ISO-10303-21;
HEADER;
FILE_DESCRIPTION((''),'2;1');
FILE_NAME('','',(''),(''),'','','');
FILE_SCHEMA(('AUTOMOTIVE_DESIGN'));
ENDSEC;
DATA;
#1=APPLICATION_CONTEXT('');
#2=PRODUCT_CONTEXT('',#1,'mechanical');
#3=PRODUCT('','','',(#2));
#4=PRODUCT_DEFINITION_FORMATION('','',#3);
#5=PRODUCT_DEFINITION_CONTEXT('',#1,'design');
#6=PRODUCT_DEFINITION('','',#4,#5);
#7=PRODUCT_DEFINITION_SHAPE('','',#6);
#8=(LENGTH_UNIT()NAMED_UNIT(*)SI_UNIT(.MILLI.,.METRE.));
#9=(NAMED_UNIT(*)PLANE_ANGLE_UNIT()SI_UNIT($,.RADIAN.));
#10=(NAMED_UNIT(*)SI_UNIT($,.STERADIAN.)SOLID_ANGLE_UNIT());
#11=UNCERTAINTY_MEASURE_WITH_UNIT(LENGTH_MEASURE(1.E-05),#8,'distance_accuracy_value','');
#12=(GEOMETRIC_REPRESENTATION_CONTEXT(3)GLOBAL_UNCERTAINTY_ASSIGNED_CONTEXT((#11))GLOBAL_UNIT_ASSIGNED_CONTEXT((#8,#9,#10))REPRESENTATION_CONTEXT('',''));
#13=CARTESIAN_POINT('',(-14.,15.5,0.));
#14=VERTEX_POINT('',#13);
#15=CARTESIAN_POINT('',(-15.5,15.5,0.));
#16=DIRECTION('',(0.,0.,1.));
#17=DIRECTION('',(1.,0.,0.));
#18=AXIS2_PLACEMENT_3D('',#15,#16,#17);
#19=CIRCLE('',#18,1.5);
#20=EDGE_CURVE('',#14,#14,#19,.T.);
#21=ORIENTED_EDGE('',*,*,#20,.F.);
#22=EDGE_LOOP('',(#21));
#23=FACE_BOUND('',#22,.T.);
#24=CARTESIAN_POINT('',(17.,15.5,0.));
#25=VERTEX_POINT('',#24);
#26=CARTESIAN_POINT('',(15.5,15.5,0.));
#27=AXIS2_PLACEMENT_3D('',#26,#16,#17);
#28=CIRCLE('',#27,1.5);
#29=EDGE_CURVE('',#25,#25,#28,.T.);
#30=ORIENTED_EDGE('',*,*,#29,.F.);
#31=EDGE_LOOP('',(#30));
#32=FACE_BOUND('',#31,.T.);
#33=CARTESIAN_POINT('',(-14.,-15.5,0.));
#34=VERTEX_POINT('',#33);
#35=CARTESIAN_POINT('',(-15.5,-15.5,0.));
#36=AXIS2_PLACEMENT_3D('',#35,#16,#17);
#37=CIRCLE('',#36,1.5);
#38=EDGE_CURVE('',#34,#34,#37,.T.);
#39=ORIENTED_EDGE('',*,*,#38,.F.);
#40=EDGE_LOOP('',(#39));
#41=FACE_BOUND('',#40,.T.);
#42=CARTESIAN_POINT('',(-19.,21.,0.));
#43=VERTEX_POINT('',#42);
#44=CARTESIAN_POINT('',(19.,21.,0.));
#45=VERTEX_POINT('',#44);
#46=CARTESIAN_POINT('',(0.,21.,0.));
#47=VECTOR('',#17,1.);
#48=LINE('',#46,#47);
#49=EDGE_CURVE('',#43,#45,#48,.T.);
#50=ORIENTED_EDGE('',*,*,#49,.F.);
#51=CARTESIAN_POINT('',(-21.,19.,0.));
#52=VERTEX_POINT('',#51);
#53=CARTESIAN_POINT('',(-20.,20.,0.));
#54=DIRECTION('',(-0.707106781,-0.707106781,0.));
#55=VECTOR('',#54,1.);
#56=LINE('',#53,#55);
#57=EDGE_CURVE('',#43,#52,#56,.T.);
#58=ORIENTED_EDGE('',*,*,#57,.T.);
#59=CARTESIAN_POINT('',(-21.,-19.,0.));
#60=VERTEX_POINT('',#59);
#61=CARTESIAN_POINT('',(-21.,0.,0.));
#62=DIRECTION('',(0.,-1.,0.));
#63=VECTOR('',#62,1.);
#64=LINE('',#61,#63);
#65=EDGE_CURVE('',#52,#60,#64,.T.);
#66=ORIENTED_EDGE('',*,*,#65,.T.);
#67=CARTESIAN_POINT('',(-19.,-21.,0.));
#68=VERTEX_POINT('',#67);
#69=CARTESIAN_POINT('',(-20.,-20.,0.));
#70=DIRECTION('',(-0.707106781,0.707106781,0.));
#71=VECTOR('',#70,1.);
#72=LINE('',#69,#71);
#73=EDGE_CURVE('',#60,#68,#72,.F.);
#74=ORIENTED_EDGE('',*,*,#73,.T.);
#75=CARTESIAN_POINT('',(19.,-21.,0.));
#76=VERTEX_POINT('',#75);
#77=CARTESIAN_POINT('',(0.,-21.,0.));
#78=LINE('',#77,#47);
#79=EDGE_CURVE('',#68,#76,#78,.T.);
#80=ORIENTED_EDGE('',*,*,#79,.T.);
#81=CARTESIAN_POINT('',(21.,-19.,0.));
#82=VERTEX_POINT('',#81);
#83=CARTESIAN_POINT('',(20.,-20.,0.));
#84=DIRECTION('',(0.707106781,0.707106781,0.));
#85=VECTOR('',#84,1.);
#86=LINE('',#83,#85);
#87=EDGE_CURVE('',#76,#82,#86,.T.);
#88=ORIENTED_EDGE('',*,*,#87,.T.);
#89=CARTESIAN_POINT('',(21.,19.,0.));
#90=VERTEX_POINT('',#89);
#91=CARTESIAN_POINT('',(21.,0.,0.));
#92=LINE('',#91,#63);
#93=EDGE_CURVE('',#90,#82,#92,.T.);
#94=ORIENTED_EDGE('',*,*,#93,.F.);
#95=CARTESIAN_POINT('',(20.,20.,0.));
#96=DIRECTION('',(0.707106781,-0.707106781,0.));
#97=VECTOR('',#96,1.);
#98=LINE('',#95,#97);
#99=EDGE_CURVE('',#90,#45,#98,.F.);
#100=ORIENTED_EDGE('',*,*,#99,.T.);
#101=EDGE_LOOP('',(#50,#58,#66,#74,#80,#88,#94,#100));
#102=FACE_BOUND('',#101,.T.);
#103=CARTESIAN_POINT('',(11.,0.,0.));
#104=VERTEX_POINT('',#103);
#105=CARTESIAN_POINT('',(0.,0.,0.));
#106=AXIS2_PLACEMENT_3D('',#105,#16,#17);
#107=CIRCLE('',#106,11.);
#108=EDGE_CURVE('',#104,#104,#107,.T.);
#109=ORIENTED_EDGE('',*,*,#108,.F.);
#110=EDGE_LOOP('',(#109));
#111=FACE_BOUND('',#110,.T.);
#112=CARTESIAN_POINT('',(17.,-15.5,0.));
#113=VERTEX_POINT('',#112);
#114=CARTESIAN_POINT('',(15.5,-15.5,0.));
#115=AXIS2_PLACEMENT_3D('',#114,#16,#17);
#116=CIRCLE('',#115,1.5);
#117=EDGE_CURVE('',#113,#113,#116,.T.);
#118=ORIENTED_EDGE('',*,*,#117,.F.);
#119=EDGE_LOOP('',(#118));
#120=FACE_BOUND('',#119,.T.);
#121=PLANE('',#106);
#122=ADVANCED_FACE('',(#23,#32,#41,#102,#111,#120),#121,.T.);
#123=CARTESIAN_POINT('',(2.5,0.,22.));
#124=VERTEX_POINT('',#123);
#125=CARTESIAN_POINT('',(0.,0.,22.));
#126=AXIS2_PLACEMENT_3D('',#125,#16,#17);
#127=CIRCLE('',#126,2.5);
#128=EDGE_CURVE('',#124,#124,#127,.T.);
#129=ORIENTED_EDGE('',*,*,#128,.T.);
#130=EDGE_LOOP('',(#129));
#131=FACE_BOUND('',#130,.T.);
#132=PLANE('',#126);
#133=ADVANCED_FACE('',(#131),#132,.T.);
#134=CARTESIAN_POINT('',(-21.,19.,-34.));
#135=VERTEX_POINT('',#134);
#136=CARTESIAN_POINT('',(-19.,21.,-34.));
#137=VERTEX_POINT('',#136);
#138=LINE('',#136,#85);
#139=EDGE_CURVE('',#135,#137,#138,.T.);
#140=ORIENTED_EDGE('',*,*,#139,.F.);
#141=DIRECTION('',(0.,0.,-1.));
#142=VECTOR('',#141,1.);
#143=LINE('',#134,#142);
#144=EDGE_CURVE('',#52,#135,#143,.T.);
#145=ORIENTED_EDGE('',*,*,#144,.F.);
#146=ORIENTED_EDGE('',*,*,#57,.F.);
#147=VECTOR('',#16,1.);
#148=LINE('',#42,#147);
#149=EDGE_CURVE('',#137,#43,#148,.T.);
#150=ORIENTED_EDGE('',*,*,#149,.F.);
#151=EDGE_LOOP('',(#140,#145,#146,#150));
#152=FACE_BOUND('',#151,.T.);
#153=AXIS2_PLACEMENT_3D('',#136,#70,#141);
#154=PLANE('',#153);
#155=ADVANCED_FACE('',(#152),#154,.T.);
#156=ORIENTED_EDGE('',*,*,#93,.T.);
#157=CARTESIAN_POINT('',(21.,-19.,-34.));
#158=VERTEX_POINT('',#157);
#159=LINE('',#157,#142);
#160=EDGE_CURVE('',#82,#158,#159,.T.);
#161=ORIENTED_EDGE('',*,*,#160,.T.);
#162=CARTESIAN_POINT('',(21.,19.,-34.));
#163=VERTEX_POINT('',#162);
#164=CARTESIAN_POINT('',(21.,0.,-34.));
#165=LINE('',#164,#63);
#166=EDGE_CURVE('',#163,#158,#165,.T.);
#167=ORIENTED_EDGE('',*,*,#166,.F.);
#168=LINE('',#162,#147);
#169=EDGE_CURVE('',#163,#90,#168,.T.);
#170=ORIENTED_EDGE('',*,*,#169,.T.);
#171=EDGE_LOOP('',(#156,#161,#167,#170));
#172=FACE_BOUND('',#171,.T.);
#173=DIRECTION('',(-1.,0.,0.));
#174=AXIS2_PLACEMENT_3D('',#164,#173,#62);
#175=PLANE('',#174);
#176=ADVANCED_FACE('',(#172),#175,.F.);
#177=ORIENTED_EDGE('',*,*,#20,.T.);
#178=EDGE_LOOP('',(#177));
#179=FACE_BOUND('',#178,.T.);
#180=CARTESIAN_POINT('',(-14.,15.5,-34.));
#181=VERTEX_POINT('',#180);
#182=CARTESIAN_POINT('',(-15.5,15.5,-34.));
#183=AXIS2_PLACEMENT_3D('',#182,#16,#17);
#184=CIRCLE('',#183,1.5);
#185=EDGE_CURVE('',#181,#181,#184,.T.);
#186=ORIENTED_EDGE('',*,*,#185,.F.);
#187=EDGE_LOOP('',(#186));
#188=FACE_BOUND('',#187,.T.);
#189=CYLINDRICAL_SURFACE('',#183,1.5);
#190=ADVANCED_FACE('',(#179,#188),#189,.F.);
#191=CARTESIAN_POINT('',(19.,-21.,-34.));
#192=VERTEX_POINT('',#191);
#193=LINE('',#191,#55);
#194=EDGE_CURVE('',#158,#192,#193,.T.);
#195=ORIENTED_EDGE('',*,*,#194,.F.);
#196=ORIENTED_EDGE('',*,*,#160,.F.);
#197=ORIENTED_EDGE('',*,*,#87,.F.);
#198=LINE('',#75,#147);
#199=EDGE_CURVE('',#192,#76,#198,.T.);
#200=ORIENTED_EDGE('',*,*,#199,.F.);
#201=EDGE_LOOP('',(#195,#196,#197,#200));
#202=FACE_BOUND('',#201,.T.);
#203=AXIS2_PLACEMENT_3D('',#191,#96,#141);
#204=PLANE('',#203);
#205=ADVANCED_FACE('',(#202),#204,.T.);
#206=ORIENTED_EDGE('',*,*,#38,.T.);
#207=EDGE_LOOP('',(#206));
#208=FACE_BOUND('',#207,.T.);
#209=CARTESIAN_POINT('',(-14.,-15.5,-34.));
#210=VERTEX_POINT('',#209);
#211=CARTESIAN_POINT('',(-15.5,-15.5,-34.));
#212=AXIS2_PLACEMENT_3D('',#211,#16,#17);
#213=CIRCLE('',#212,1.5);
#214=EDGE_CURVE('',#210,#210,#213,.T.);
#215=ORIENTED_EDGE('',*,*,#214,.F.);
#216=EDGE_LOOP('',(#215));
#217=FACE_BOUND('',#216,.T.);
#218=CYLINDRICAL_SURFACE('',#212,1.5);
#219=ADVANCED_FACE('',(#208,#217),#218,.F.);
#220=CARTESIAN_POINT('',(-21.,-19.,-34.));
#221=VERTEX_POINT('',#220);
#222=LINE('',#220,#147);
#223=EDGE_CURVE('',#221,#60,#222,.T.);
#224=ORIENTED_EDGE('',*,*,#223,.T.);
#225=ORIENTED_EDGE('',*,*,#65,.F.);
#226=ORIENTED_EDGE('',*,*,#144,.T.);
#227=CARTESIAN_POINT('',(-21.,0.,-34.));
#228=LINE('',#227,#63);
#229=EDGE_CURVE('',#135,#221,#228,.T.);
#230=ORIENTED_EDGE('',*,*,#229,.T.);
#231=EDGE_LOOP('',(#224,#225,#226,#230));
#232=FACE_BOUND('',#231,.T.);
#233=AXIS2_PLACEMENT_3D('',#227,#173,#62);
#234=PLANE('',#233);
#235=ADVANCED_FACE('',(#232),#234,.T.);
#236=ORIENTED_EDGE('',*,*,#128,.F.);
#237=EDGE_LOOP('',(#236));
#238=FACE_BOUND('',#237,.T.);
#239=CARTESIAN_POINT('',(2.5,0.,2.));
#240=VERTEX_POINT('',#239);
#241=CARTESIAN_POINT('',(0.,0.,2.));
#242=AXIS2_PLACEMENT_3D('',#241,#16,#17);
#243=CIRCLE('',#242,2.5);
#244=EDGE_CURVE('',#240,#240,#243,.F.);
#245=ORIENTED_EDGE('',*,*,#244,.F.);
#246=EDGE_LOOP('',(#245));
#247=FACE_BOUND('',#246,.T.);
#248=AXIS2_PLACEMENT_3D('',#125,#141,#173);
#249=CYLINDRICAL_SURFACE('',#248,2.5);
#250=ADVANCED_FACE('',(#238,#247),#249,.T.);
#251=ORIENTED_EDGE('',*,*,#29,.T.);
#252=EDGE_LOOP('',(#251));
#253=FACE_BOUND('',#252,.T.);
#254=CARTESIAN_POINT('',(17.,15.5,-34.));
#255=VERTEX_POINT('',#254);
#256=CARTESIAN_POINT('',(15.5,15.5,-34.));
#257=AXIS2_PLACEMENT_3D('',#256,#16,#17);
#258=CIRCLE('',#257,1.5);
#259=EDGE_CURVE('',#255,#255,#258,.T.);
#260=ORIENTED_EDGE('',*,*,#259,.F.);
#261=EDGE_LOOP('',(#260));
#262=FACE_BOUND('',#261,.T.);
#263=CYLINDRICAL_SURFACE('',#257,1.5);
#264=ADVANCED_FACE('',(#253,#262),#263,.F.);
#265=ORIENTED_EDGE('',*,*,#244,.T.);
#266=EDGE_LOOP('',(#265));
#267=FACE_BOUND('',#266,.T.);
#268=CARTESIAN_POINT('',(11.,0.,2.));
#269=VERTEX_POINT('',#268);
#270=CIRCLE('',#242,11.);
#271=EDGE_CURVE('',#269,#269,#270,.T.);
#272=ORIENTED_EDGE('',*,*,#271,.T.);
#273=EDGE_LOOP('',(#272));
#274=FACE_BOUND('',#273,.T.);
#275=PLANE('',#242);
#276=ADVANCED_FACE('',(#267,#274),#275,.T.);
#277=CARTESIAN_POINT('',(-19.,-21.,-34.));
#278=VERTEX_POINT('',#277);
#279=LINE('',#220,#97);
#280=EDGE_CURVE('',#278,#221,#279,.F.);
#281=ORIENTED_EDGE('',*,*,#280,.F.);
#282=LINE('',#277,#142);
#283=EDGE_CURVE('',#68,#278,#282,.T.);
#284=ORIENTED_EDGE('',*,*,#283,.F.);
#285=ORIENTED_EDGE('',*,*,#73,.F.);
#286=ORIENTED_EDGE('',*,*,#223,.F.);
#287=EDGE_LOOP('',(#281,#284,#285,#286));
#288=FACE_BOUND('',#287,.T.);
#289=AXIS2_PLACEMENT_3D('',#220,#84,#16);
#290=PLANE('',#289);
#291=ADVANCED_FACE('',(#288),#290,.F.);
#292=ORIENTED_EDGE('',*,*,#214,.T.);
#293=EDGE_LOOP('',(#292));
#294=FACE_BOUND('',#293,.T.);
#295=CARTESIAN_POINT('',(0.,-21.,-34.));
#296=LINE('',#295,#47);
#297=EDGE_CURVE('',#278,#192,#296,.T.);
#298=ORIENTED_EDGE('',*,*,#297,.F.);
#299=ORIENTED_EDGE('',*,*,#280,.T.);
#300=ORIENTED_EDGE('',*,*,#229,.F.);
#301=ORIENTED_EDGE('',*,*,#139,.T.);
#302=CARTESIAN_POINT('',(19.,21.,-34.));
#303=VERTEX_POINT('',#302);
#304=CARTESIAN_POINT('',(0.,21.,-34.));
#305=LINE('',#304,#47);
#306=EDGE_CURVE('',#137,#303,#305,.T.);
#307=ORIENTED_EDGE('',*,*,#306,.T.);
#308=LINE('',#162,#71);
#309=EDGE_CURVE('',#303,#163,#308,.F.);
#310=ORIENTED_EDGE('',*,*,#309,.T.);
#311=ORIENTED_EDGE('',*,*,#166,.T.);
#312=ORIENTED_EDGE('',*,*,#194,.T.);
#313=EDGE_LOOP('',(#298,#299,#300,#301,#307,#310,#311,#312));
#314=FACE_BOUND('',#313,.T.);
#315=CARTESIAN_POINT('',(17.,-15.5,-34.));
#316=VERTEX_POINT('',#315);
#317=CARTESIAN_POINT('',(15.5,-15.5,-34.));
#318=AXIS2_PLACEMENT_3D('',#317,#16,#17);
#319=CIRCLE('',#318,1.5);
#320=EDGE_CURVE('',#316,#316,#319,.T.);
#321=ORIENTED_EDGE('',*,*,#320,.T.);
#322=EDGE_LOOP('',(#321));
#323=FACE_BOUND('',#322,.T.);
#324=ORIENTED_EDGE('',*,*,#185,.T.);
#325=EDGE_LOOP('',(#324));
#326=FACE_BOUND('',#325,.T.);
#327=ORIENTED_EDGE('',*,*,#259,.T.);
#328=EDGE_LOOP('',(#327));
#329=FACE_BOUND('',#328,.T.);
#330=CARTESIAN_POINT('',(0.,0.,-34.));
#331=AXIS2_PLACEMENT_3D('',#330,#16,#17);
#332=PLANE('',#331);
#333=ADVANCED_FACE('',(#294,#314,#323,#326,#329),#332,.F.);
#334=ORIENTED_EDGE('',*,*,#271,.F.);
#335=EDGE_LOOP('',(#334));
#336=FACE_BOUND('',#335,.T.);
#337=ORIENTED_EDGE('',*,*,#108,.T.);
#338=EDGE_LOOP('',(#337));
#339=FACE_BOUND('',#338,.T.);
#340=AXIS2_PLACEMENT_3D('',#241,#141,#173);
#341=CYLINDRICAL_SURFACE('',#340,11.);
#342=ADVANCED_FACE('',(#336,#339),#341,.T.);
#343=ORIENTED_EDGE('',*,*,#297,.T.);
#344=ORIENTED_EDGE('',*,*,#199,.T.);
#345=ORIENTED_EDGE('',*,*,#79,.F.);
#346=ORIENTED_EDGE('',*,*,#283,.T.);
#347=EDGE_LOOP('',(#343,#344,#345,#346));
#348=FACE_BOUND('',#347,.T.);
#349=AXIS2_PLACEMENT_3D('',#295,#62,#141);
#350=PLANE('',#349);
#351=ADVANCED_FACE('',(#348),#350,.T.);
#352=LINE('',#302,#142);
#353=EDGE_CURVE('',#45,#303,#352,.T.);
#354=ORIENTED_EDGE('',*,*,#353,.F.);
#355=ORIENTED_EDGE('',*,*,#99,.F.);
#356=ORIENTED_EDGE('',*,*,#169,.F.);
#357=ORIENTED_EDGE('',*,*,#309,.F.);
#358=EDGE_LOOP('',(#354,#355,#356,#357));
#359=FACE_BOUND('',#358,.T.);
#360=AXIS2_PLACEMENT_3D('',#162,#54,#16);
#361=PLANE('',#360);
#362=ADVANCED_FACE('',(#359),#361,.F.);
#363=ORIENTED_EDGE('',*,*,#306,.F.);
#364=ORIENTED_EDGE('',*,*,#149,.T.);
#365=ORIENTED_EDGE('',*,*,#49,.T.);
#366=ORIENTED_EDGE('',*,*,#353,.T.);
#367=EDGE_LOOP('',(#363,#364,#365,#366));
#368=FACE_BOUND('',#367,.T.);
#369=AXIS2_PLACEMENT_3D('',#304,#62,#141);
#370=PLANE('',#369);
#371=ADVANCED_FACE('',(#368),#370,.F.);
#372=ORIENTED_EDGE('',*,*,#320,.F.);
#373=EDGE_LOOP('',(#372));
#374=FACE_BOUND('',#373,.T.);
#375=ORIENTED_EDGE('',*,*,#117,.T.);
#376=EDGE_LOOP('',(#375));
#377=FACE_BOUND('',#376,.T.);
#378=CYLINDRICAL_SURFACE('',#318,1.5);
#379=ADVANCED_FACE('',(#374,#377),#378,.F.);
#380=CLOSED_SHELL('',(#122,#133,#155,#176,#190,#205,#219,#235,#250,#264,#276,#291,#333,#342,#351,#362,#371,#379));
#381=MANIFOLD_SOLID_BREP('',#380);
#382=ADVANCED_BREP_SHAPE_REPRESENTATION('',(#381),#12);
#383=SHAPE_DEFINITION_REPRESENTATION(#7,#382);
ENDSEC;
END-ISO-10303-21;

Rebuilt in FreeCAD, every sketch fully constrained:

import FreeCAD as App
import Part
import Sketcher

V = App.Vector
Q = App.Units.Quantity


def edges_at(feature, points):
    """Names of the edges that pass closest to the given points."""
    edges = feature.Shape.Edges
    near = lambda p: min(range(len(edges)), key=lambda i: edges[i].distToShape(Part.Vertex(*p))[0])
    return sorted({f"Edge{near(p) + 1}" for p in points})


def add_polygon(sketch, points):
    """Adds a closed chain of lines whose ends are joined by coincident constraints."""
    first, n = sketch.GeometryCount, len(points)
    for a, b in zip(points, points[1:] + points[:1]):
        sketch.addGeometry(Part.LineSegment(App.Vector(*a, 0), App.Vector(*b, 0)), False)
    for i in range(n):
        sketch.addConstraint(Sketcher.Constraint("Coincident", first + i, 2, first + (i + 1) % n, 1))

doc = App.newDocument("Part")
body = doc.addObject("PartDesign::Body", "Body")

# Sketch on XY plane
sketch1 = body.newObject("Sketcher::SketchObject", "Sketch")
sketch1.AttachmentSupport = (doc.getObject("XY_Plane"), [""])
sketch1.MapMode = "FlatFace"
add_polygon(sketch1, [(-21, 21), (-21, -21), (21, -21), (21, 21)])  # lines 0-3
sketch1.addGeometry(Part.Circle(V(-15.5, -15.5, 0), V(0, 0, 1), 1.5), False)  # 4
sketch1.addGeometry(Part.Circle(V(15.5, -15.5, 0), V(0, 0, 1), 1.5), False)  # 5
sketch1.addGeometry(Part.Circle(V(-15.5, 15.5, 0), V(0, 0, 1), 1.5), False)  # 6
sketch1.addGeometry(Part.Circle(V(15.5, 15.5, 0), V(0, 0, 1), 1.5), False)  # 7
sketch1.addConstraint(Sketcher.Constraint("Vertical", 0))
sketch1.addConstraint(Sketcher.Constraint("Horizontal", 1))
sketch1.addConstraint(Sketcher.Constraint("Vertical", 2))
sketch1.addConstraint(Sketcher.Constraint("Horizontal", 3))
sketch1.addConstraint(Sketcher.Constraint("Equal", 4, 5))
sketch1.addConstraint(Sketcher.Constraint("Equal", 5, 6))
sketch1.addConstraint(Sketcher.Constraint("Equal", 6, 7))
sketch1.addConstraint(Sketcher.Constraint("Symmetric", 5, 3, 6, 3, -1, 1))
sketch1.addConstraint(Sketcher.Constraint("Symmetric", 4, 3, 7, 3, -1, 1))
sketch1.addConstraint(Sketcher.Constraint("Symmetric", 0, 2, 2, 2, -1, 1))
sketch1.addConstraint(Sketcher.Constraint("Symmetric", 4, 3, 5, 3, -2))
sketch1.addConstraint(Sketcher.Constraint("Equal", 3, 0))
sketch1.addConstraint(Sketcher.Constraint("Diameter", 4, Q("3 mm")))
sketch1.addConstraint(Sketcher.Constraint("DistanceX", 1, 1, 1, 2, Q("42 mm")))
sketch1.addConstraint(Sketcher.Constraint("DistanceX", 4, 3, 5, 3, Q("31 mm")))
sketch1.addConstraint(Sketcher.Constraint("DistanceY", 4, 3, 6, 3, Q("31 mm")))
pad1 = body.newObject("PartDesign::Pad", "Pad")
pad1.Profile = sketch1
pad1.Length = 34
pad1.Reversed = True

# Sketch on XY plane
sketch2 = body.newObject("Sketcher::SketchObject", "Sketch001")
sketch2.AttachmentSupport = (doc.getObject("XY_Plane"), [""])
sketch2.MapMode = "FlatFace"
sketch2.addGeometry(Part.Circle(V(0, 0, 0), V(0, 0, 1), 11), False)
sketch2.addConstraint(Sketcher.Constraint("Coincident", 0, 3, -1, 1))
sketch2.addConstraint(Sketcher.Constraint("Diameter", 0, Q("22 mm")))
pad2 = body.newObject("PartDesign::Pad", "Pad001")
pad2.Profile = sketch2
pad2.Length = 2

# Sketch on XY plane
sketch3 = body.newObject("Sketcher::SketchObject", "Sketch002")
sketch3.AttachmentSupport = (doc.getObject("XY_Plane"), [""])
sketch3.MapMode = "FlatFace"
sketch3.addGeometry(Part.Circle(V(0, 0, 0), V(0, 0, 1), 2.5), False)
sketch3.addConstraint(Sketcher.Constraint("Coincident", 0, 3, -1, 1))
sketch3.addConstraint(Sketcher.Constraint("Diameter", 0, Q("5 mm")))
pad3 = body.newObject("PartDesign::Pad", "Pad002")
pad3.Profile = sketch3
pad3.Length = 22
doc.recompute()

chamfer = body.newObject("PartDesign::Chamfer", "Chamfer")
chamfer.Base = (pad3, edges_at(pad3, [
    (21, -21, -17),
    (-21, -21, -17),
    (-21, 21, -17),
    (21, 21, -17),
]))
chamfer.Size = 2

doc.recompute()
